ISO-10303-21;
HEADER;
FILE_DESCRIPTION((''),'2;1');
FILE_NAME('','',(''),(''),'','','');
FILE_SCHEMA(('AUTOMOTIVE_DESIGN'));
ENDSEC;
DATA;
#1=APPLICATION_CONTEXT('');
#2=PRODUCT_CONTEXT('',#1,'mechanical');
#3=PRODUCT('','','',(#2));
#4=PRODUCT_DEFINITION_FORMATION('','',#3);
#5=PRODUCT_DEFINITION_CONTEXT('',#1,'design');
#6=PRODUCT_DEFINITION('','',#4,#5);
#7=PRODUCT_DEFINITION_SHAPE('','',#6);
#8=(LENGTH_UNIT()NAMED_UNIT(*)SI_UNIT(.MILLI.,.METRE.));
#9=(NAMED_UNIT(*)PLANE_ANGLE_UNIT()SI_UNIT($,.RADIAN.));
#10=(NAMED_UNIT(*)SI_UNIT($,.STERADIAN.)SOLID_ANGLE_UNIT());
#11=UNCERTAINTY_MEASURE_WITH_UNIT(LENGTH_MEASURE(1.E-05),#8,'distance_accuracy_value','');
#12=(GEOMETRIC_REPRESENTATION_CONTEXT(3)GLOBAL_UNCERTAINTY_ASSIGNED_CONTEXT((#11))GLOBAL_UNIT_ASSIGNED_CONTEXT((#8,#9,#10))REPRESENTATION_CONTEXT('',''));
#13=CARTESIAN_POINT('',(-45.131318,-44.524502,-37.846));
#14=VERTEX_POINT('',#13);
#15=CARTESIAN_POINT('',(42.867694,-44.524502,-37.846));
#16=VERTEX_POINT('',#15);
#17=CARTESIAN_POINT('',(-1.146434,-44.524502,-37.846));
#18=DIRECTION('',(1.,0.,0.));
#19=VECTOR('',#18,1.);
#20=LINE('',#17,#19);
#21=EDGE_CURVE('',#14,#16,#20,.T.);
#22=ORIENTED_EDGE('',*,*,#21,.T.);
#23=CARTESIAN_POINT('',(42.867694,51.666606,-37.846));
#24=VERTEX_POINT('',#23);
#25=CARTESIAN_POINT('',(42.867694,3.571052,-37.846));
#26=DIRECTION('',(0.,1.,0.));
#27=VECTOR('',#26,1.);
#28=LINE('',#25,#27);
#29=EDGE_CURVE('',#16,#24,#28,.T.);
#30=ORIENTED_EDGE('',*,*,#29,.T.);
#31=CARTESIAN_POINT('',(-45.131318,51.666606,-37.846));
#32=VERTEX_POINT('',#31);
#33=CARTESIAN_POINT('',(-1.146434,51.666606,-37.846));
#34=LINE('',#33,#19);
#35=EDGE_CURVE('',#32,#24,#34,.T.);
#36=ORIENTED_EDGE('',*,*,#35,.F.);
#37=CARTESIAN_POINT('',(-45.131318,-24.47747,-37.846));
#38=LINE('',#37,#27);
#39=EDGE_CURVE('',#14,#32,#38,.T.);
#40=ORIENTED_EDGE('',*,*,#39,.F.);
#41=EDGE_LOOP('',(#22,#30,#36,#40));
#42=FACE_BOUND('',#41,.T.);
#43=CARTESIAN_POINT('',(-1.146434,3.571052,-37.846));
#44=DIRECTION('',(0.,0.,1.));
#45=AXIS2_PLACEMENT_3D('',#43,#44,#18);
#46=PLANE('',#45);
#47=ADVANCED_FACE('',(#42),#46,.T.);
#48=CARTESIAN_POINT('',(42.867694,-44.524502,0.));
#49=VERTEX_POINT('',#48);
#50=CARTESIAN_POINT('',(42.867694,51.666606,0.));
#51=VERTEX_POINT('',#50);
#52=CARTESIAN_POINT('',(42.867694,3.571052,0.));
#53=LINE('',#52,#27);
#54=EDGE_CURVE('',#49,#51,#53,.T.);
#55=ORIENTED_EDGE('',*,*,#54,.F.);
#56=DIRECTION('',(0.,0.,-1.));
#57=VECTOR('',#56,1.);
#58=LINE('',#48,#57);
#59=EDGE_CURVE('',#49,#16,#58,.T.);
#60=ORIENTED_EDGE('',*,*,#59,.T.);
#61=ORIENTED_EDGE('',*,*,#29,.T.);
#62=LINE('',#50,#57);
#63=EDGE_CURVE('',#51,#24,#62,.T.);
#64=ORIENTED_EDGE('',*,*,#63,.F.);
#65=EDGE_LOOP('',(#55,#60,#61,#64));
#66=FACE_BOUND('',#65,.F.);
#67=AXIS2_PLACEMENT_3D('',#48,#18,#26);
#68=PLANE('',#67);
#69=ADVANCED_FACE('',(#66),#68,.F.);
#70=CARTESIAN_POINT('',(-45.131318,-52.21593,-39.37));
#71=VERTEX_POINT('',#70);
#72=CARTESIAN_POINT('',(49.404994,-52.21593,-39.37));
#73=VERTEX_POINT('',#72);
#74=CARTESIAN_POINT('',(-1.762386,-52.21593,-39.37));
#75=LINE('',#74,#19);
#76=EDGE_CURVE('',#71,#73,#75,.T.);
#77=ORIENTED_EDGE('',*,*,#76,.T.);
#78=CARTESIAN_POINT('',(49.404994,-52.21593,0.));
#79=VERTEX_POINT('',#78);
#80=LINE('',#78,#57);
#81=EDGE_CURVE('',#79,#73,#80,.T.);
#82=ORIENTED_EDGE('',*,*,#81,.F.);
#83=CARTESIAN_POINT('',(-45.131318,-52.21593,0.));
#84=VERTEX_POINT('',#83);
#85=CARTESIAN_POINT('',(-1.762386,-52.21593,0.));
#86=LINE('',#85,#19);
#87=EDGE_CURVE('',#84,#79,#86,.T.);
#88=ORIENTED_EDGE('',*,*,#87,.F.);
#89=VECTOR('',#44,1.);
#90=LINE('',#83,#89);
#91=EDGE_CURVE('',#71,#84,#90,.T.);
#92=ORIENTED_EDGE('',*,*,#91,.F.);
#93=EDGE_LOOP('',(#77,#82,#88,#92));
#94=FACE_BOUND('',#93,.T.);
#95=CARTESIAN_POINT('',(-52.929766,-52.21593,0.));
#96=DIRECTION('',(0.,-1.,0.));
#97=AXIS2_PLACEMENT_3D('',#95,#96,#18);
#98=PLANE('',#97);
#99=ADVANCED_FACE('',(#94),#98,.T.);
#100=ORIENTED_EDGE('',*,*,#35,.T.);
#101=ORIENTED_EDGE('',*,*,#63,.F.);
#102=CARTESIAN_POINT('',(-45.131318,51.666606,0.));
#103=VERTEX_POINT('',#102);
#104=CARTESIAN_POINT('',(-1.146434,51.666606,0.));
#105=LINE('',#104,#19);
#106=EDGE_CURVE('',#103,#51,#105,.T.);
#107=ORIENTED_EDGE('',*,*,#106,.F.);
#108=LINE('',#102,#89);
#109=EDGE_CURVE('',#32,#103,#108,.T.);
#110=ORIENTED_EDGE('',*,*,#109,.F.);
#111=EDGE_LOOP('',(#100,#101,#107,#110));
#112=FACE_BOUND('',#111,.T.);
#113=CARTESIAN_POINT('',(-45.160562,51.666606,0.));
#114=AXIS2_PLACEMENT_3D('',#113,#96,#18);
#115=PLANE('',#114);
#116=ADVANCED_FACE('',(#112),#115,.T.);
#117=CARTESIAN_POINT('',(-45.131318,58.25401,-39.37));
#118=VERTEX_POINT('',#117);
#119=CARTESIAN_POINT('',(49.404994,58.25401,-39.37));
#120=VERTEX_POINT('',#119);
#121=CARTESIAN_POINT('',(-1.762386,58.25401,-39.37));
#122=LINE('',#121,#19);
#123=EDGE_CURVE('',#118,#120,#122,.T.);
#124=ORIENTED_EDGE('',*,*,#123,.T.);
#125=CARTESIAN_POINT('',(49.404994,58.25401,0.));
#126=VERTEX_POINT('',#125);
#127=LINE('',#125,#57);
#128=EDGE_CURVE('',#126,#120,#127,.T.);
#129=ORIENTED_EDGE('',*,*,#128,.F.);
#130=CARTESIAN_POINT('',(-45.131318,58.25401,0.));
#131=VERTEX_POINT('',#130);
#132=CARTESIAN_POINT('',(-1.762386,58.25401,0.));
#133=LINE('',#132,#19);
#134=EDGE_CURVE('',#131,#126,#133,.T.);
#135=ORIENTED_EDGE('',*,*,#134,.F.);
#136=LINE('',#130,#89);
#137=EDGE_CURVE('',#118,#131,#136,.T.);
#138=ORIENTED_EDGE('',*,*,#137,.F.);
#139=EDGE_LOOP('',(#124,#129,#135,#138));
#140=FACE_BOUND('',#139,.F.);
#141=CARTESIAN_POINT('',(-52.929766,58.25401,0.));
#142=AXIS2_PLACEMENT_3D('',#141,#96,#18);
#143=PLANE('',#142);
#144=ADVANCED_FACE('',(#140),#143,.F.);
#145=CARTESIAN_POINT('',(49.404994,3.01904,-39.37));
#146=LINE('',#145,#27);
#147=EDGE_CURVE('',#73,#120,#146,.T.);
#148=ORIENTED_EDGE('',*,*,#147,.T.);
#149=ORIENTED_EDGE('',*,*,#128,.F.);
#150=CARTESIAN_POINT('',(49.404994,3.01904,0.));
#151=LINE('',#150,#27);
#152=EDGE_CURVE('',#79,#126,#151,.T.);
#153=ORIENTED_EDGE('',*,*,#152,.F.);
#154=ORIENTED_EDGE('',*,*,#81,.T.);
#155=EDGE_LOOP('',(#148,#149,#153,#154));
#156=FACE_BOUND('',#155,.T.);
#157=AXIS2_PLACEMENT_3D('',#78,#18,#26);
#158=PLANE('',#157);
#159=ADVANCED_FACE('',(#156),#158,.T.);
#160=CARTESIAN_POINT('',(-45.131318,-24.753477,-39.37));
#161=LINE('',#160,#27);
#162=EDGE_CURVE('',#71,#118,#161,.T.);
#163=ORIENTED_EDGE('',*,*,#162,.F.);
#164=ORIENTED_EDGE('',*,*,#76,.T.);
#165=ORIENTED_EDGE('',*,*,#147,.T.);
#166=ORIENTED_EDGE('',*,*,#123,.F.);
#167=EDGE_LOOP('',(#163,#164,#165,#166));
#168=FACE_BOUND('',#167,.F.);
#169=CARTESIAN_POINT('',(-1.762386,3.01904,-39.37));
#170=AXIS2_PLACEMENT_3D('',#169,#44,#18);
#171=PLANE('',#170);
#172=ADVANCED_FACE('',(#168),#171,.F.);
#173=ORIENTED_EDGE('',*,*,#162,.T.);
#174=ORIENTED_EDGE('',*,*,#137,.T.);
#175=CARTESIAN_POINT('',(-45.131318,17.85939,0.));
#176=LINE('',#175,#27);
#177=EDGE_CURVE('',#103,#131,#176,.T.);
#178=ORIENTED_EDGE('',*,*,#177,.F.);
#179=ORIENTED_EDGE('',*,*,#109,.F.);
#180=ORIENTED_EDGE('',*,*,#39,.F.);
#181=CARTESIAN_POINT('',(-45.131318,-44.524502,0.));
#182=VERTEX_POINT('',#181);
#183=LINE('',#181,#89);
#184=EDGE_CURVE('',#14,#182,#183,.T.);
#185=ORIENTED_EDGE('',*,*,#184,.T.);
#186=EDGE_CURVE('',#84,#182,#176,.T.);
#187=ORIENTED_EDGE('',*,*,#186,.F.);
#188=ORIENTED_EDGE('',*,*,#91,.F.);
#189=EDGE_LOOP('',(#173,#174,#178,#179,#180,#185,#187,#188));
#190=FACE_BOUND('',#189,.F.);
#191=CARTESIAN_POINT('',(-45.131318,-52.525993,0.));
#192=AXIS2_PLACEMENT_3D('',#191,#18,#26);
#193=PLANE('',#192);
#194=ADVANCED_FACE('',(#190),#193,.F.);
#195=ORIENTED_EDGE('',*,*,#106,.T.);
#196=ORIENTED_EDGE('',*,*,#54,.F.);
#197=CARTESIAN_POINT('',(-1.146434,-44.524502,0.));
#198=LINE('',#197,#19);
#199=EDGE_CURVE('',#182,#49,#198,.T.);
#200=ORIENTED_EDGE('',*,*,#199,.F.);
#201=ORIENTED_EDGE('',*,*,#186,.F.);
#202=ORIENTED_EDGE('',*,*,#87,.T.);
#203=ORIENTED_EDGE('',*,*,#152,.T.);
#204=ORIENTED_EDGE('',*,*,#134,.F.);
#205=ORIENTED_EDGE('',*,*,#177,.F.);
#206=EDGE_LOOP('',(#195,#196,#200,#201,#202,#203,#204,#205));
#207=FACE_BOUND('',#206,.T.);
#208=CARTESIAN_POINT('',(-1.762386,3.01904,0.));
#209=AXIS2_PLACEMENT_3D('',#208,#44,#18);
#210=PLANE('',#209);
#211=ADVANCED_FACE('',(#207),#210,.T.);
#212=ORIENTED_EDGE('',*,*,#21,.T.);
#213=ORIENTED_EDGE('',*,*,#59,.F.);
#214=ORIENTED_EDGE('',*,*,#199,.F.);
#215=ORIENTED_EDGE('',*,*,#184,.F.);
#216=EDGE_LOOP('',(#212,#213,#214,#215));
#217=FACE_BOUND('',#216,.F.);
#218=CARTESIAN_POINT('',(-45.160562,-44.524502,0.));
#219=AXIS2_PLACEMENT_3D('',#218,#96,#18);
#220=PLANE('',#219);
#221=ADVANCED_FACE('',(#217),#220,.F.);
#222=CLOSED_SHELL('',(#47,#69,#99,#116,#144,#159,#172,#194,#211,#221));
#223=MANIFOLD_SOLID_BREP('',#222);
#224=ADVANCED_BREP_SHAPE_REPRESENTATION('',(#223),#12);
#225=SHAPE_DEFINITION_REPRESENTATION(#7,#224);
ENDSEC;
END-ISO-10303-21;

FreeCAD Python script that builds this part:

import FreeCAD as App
import Part
import Sketcher
Q = App.Units.Quantity

doc = App.newDocument("Part")
body = doc.addObject("PartDesign::Body", "Body")

# Sketch on XY plane
sketch1 = body.newObject("Sketcher::SketchObject", "Sketch")
sketch1.AttachmentSupport = (doc.getObject("XY_Plane"), [""])
sketch1.MapMode = "FlatFace"
sketch1.addGeometry([
    Part.LineSegment(App.Vector(-53, 58, 0), App.Vector(-53, -52, 0)),
    Part.LineSegment(App.Vector(-53, -52, 0), App.Vector(49, -52, 0)),
    Part.LineSegment(App.Vector(49, -52, 0), App.Vector(49, 58, 0)),
    Part.LineSegment(App.Vector(49, 58, 0), App.Vector(-53, 58, 0)),
], False)
sketch1.addConstraint([
    Sketcher.Constraint("Coincident", 0, 2, 1, 1),
    Sketcher.Constraint("Coincident", 1, 2, 2, 1),
    Sketcher.Constraint("Coincident", 2, 2, 3, 1),
    Sketcher.Constraint("Coincident", 3, 2, 0, 1),
    Sketcher.Constraint("Vertical", 0),
    Sketcher.Constraint("Horizontal", 1),
    Sketcher.Constraint("Vertical", 2),
    Sketcher.Constraint("Horizontal", 3),
    Sketcher.Constraint("DistanceX", 1, 1, 1, 2, Q("102.33476 mm")),
    Sketcher.Constraint("DistanceY", 0, 2, 0, 1, Q("110.469941 mm")),
    Sketcher.Constraint("DistanceY", 0, 2, -1, 1, Q("52.21593 mm")),
    Sketcher.Constraint("DistanceX", 0, 2, -1, 1, Q("52.929766 mm")),
])
pad1 = body.newObject("PartDesign::Pad", "Pad")
pad1.Profile = sketch1
pad1.Length = Q("1.55 in")
pad1.Reversed = True

# Sketch on XY plane
sketch2 = body.newObject("Sketcher::SketchObject", "Sketch001")
sketch2.AttachmentSupport = (doc.getObject("XY_Plane"), [""])
sketch2.MapMode = "FlatFace"
sketch2.addGeometry([
    Part.LineSegment(App.Vector(-45, 52, 0), App.Vector(-45, -45, 0)),
    Part.LineSegment(App.Vector(-45, -45, 0), App.Vector(43, -45, 0)),
    Part.LineSegment(App.Vector(43, -45, 0), App.Vector(43, 52, 0)),
    Part.LineSegment(App.Vector(43, 52, 0), App.Vector(-45, 52, 0)),
], False)
sketch2.addConstraint([
    Sketcher.Constraint("Coincident", 0, 2, 1, 1),
    Sketcher.Constraint("Coincident", 1, 2, 2, 1),
    Sketcher.Constraint("Coincident", 2, 2, 3, 1),
    Sketcher.Constraint("Coincident", 3, 2, 0, 1),
    Sketcher.Constraint("Vertical", 0),
    Sketcher.Constraint("Horizontal", 1),
    Sketcher.Constraint("Vertical", 2),
    Sketcher.Constraint("Horizontal", 3),
    Sketcher.Constraint("DistanceY", 0, 2, 0, 1, Q("96.191108 mm")),
    Sketcher.Constraint("DistanceY", 0, 2, -1, 1, Q("44.524502 mm")),
    Sketcher.Constraint("DistanceX", 1, 1, 1, 2, Q("88.028256 mm")),
    Sketcher.Constraint("DistanceX", 0, 2, -1, 1, Q("45.160562 mm")),
])
pocket1 = body.newObject("PartDesign::Pocket", "Pocket")
pocket1.Profile = sketch2
pocket1.Length = Q("1.49 in")

# Sketch on XY plane
sketch3 = body.newObject("Sketcher::SketchObject", "Sketch002")
sketch3.AttachmentSupport = (doc.getObject("XY_Plane"), [""])
sketch3.MapMode = "FlatFace"
sketch3.addGeometry([
    Part.LineSegment(App.Vector(-74, 88, 0), App.Vector(-74, -53, 0)),
    Part.LineSegment(App.Vector(-74, -53, 0), App.Vector(-45, -53, 0)),
    Part.LineSegment(App.Vector(-45, -53, 0), App.Vector(-45, 88, 0)),
    Part.LineSegment(App.Vector(-45, 88, 0), App.Vector(-74, 88, 0)),
], False)
sketch3.addConstraint([
    Sketcher.Constraint("Coincident", 0, 2, 1, 1),
    Sketcher.Constraint("Coincident", 1, 2, 2, 1),
    Sketcher.Constraint("Coincident", 2, 2, 3, 1),
    Sketcher.Constraint("Coincident", 3, 2, 0, 1),
    Sketcher.Constraint("Vertical", 0),
    Sketcher.Constraint("Horizontal", 1),
    Sketcher.Constraint("Vertical", 2),
    Sketcher.Constraint("Horizontal", 3),
    Sketcher.Constraint("DistanceX", 1, 1, 1, 2, Q("28.833367 mm")),
    Sketcher.Constraint("DistanceY", 0, 2, 0, 1, Q("140.770766 mm")),
    Sketcher.Constraint("DistanceX", 0, 2, -1, 1, Q("73.964685 mm")),
    Sketcher.Constraint("DistanceY", 0, 2, -1, 1, Q("52.525993 mm")),
])
pocket2 = body.newObject("PartDesign::Pocket", "Pocket001")
pocket2.Profile = sketch3
pocket2.Length = Q("2.29 in")

doc.recompute()
